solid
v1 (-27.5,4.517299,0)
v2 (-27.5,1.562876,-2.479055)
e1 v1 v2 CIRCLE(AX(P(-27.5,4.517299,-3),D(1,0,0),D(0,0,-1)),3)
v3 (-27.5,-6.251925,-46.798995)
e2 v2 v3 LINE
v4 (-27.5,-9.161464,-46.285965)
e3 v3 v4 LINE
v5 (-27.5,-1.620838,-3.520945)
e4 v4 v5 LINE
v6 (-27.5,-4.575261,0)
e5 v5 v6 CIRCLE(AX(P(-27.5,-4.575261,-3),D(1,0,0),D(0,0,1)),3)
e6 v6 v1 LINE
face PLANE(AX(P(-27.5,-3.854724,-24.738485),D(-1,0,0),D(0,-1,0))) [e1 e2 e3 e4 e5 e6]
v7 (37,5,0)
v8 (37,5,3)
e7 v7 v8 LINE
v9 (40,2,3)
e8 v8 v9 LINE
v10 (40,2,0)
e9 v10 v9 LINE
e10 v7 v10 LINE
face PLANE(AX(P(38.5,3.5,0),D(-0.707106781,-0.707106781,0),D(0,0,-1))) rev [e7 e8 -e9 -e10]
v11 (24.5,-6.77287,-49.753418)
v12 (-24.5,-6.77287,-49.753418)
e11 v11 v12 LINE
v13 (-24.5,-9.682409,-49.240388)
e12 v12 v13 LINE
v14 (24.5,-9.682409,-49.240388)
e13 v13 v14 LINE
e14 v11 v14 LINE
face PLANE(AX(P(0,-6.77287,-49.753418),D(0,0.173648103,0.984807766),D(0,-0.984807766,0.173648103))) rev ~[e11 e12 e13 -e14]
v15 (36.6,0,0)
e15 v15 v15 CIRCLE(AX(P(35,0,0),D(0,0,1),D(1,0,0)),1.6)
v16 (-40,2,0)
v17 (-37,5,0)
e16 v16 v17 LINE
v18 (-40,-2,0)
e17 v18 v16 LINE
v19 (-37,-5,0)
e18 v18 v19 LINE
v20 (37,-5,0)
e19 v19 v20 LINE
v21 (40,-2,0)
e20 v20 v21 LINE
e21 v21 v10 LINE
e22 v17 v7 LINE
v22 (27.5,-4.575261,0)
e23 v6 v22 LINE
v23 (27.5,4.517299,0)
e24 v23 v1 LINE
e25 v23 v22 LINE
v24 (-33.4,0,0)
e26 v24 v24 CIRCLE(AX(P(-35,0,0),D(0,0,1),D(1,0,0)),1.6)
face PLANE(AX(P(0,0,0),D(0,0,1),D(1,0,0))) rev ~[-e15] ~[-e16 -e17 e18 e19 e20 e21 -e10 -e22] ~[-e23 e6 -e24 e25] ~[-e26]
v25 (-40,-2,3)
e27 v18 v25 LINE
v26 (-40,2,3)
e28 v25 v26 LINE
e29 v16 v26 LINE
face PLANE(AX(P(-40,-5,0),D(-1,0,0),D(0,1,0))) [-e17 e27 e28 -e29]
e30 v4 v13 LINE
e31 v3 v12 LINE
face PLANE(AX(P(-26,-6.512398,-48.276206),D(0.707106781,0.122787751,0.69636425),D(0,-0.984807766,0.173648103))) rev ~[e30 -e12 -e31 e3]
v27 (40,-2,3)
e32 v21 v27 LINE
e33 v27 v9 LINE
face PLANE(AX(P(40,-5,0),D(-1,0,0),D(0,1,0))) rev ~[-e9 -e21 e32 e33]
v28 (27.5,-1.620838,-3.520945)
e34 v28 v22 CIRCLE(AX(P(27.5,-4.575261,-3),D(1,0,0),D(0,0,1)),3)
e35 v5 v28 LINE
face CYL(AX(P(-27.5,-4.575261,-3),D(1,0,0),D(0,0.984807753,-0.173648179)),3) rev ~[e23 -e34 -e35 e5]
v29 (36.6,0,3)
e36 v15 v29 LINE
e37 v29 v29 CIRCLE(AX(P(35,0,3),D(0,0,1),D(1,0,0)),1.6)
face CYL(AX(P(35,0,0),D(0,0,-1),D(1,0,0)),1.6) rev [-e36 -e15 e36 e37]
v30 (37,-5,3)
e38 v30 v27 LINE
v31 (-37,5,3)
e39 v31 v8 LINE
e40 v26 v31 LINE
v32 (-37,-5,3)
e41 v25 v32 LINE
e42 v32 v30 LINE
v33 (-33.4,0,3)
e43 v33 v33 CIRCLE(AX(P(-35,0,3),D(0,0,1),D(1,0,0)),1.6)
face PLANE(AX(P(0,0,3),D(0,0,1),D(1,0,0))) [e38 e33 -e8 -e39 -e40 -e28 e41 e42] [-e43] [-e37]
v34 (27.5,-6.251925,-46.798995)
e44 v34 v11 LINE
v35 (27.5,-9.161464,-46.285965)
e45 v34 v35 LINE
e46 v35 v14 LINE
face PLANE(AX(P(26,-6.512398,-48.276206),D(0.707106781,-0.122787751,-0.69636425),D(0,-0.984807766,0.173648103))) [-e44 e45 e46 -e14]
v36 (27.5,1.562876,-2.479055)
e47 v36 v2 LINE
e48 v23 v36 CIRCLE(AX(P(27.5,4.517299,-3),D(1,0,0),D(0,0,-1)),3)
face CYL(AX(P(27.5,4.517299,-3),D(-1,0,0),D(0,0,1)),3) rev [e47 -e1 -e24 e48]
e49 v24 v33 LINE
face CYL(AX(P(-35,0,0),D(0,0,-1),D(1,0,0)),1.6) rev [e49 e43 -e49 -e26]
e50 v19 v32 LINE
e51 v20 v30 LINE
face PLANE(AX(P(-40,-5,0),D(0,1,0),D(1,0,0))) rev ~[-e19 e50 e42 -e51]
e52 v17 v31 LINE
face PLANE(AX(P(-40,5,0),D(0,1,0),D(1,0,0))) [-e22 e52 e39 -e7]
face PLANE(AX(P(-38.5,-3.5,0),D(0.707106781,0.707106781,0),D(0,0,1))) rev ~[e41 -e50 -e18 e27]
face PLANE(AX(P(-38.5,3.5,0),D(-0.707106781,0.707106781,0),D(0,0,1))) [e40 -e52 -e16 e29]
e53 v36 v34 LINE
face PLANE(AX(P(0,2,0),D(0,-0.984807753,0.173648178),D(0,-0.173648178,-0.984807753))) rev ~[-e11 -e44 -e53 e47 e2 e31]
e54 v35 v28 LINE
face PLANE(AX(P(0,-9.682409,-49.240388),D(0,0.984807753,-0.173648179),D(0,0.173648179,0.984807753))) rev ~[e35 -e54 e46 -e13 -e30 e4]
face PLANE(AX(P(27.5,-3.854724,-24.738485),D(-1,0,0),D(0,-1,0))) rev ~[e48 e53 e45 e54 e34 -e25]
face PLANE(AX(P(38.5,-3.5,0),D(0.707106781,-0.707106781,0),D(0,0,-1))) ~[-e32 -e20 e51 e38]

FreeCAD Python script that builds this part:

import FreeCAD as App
import Part
import Sketcher
Q = App.Units.Quantity


def edges_at(feature, points):
    """Names of the edges that pass closest to the given points."""
    edges = feature.Shape.Edges
    near = lambda p: min(range(len(edges)), key=lambda i: edges[i].distToShape(Part.Vertex(*p))[0])
    return sorted({f"Edge{near(p) + 1}" for p in points})

doc = App.newDocument("Part")
params = doc.addObject("Spreadsheet::Sheet", "Params")
for row, (alias, value) in enumerate([
    ("sketch1_diameter", "3.2 mm"),
    ("sketch1_width", "80 mm"),
    ("sketch1_height", "10 mm"),
    ("pad1_length", "3 mm"),
    ("chamfer_size", "3 mm"),
    ("sketch2_width", "3 mm"),
    ("sketch2_length", "50 mm"),
    ("pad2_length", "55 mm"),
    ("chamfer2_size", "3 mm"),
    ("fillet_radius", "3 mm"),
], start=1):
    params.set(f"A{row}", alias)
    params.set(f"B{row}", "=" + value)
    params.setAlias(f"B{row}", alias)

body = doc.addObject("PartDesign::Body", "Body")

# Sketch on XY plane
sketch1 = body.newObject("Sketcher::SketchObject", "Sketch")
sketch1.AttachmentSupport = (doc.getObject("XY_Plane"), [""])
sketch1.MapMode = "FlatFace"
sketch1.addGeometry(Part.LineSegment(App.Vector(-40, 5, 0), App.Vector(-40, -5, 0)), False)
sketch1.addGeometry(Part.LineSegment(App.Vector(-40, -5, 0), App.Vector(40, -5, 0)), False)
sketch1.addGeometry(Part.LineSegment(App.Vector(40, -5, 0), App.Vector(40, 5, 0)), False)
sketch1.addGeometry(Part.LineSegment(App.Vector(40, 5, 0), App.Vector(-40, 5, 0)), False)
sketch1.addGeometry(Part.Circle(App.Vector(-35, 0, 0), App.Vector(0, 0, 1), 1.6), False)
sketch1.addGeometry(Part.Circle(App.Vector(35, 0, 0), App.Vector(0, 0, 1), 1.6), False)
sketch1.addConstraint(Sketcher.Constraint("Coincident", 0, 2, 1, 1))
sketch1.addConstraint(Sketcher.Constraint("Coincident", 1, 2, 2, 1))
sketch1.addConstraint(Sketcher.Constraint("Coincident", 2, 2, 3, 1))
sketch1.addConstraint(Sketcher.Constraint("Coincident", 3, 2, 0, 1))
sketch1.addConstraint(Sketcher.Constraint("Vertical", 0))
sketch1.addConstraint(Sketcher.Constraint("Horizontal", 1))
sketch1.addConstraint(Sketcher.Constraint("Vertical", 2))
sketch1.addConstraint(Sketcher.Constraint("Horizontal", 3))
sketch1.addConstraint(Sketcher.Constraint("Equal", 4, 5))
sketch1.addConstraint(Sketcher.Constraint("Symmetric", 4, 3, 5, 3, -1, 1))
sketch1.addConstraint(Sketcher.Constraint("Symmetric", 0, 2, 2, 2, -1, 1))
sketch1.addConstraint(Sketcher.Constraint("PointOnObject", 4, 3, -1))
sketch1.addConstraint(Sketcher.Constraint("Diameter", 4, Q("3.2 mm")))
sketch1.addConstraint(Sketcher.Constraint("DistanceX", 1, 1, 1, 2, Q("80 mm")))
sketch1.addConstraint(Sketcher.Constraint("DistanceY", 0, 2, 0, 1, Q("10 mm")))
sketch1.addConstraint(Sketcher.Constraint("DistanceX", 4, 3, -1, 1, Q("35 mm")))
sketch1.setExpression("Constraints[12]", "Params.sketch1_diameter")
sketch1.setExpression("Constraints[13]", "Params.sketch1_width")
sketch1.setExpression("Constraints[14]", "Params.sketch1_height")
pad1 = body.newObject("PartDesign::Pad", "Pad")
pad1.Profile = sketch1
pad1.setExpression("Length", "Params.pad1_length")
doc.recompute()

chamfer = body.newObject("PartDesign::Chamfer", "Chamfer")
chamfer.Base = (pad1, edges_at(pad1, [
    (40, -5, 1.5),
    (40, 5, 1.5),
    (-40, -5, 1.5),
    (-40, 5, 1.5),
]))
chamfer.setExpression("Size", "Params.chamfer_size")

# Sketch on YZ plane
sketch2 = body.newObject("Sketcher::SketchObject", "Sketch001")
sketch2.AttachmentSupport = (doc.getObject("YZ_Plane"), [""])
sketch2.MapMode = "FlatFace"
sketch2.addGeometry(Part.LineSegment(App.Vector(2, 0, 0), App.Vector(-1, 0, 0)), False)
sketch2.addGeometry(Part.LineSegment(App.Vector(-1, 0, 0), App.Vector(-9.7, -49.2, 0)), False)
sketch2.addGeometry(Part.LineSegment(App.Vector(-9.7, -49.2, 0), App.Vector(-6.8, -49.8, 0)), False)
sketch2.addGeometry(Part.LineSegment(App.Vector(-6.8, -49.8, 0), App.Vector(2, 0, 0)), False)
sketch2.addConstraint(Sketcher.Constraint("Coincident", 0, 2, 1, 1))
sketch2.addConstraint(Sketcher.Constraint("Coincident", 1, 2, 2, 1))
sketch2.addConstraint(Sketcher.Constraint("Coincident", 2, 2, 3, 1))
sketch2.addConstraint(Sketcher.Constraint("Coincident", 3, 2, 0, 1))
sketch2.addConstraint(Sketcher.Constraint("Horizontal", 0))
sketch2.addConstraint(Sketcher.Constraint("PointOnObject", 0, 2, -1))
sketch2.addConstraint(Sketcher.Constraint("Perpendicular", 1, 2))
sketch2.addConstraint(Sketcher.Constraint("Perpendicular", 2, 3))
sketch2.addConstraint(Sketcher.Constraint("DistanceX", 0, 2, 0, 1, Q("3 mm")))
sketch2.addConstraint(Sketcher.Constraint("Angle", 1, Q("-100 deg")))
sketch2.addConstraint(Sketcher.Constraint("Distance", 1, Q("50 mm")))
sketch2.addConstraint(Sketcher.Constraint("DistanceX", 0, 2, -1, 1, Q("1 mm")))
sketch2.setExpression("Constraints[8]", "Params.sketch2_width")
sketch2.setExpression("Constraints[10]", "Params.sketch2_length")
pad2 = body.newObject("PartDesign::Pad", "Pad001")
pad2.Profile = sketch2
pad2.setExpression("Length", "Params.pad2_length")
pad2.Midplane = True
doc.recompute()

chamfer2 = body.newObject("PartDesign::Chamfer", "Chamfer001")
chamfer2.Base = (pad2, edges_at(pad2, [(-27.5, -8.228, -49.497), (27.5, -8.228, -49.497)]))
chamfer2.setExpression("Size", "Params.chamfer2_size")
doc.recompute()

fillet = body.newObject("PartDesign::Fillet", "Fillet")
fillet.Base = (chamfer2, edges_at(chamfer2, [(0, -1, 0), (0, 2, 0)]))
fillet.setExpression("Radius", "Params.fillet_radius")

doc.recompute()
